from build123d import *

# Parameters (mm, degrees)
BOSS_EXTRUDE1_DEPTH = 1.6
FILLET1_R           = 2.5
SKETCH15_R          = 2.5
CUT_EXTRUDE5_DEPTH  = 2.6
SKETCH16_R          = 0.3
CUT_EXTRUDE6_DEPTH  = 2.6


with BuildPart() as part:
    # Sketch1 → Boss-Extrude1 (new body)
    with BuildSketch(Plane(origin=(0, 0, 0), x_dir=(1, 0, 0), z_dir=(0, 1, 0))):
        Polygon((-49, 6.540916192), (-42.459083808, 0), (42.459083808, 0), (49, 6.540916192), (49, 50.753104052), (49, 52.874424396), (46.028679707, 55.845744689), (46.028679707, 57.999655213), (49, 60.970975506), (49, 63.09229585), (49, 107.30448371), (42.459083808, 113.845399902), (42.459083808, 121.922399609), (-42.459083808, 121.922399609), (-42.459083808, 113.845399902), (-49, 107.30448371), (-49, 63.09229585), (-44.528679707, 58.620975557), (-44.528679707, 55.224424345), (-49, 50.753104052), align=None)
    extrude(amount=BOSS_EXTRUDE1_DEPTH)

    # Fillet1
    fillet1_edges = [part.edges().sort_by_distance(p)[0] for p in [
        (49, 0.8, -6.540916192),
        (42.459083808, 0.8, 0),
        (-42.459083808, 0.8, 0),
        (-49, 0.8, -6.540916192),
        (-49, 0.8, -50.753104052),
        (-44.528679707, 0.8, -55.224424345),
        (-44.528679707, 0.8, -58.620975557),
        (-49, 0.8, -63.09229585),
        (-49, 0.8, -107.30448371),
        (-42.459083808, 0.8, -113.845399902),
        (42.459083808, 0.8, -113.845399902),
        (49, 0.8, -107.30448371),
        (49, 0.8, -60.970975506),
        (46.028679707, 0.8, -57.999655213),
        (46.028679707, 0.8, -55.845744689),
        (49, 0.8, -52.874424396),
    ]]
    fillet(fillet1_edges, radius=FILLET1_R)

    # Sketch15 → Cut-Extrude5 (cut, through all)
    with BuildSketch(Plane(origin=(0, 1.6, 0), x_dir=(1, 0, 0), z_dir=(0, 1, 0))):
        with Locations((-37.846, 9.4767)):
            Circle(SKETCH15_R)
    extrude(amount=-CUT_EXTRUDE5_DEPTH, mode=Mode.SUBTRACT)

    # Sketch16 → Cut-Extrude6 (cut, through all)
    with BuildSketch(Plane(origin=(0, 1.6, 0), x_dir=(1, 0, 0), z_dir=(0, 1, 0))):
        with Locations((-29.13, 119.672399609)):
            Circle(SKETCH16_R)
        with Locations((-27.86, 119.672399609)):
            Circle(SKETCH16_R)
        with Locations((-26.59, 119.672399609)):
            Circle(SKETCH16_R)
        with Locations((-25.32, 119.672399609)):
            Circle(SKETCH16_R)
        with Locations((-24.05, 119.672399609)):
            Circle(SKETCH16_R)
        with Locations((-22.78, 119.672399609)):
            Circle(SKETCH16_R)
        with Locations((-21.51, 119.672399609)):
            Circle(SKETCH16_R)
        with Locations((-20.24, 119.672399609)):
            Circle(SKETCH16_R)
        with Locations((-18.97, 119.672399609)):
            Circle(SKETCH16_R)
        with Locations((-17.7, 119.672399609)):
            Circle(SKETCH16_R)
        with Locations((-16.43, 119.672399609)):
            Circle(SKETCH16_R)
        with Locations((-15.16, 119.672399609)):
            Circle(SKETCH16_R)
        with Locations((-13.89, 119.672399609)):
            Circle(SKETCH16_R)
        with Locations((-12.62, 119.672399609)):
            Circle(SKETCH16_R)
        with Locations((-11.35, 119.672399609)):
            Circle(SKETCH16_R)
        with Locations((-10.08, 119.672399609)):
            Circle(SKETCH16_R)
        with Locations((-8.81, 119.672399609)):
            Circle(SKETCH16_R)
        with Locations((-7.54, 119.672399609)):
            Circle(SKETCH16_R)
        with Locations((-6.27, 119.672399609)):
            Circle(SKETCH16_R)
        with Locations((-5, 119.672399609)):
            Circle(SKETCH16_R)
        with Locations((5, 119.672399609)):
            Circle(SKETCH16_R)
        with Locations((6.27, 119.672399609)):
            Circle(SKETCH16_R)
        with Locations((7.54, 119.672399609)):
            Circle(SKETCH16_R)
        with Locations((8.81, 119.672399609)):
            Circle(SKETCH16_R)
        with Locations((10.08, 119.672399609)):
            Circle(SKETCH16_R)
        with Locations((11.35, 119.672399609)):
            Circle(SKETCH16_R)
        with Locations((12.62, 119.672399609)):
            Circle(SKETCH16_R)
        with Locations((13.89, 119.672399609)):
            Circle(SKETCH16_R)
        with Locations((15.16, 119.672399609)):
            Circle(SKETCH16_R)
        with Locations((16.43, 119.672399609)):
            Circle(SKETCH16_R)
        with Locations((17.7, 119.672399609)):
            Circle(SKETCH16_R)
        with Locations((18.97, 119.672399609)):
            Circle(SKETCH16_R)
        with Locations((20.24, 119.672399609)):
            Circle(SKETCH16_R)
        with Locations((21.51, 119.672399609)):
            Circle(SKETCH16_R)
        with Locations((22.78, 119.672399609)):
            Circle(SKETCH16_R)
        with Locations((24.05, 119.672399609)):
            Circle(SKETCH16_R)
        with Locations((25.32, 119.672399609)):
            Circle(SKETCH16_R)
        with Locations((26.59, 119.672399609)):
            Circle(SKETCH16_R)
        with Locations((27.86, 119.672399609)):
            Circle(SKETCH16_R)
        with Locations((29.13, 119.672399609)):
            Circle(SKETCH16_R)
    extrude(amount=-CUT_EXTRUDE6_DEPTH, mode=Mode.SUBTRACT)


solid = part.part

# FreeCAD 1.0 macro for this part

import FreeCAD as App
import Part
import Sketcher

V = App.Vector
Q = App.Units.Quantity


def edges_at(feature, points):
    """Names of the edges that pass closest to the given points."""
    edges = feature.Shape.Edges
    near = lambda p: min(range(len(edges)), key=lambda i: edges[i].distToShape(Part.Vertex(*p))[0])
    return sorted({f"Edge{near(p) + 1}" for p in points})

doc = App.newDocument("Part")
body = doc.addObject("PartDesign::Body", "Body")

# Sketch on XZ plane
sketch1 = doc.addObject("Sketcher::SketchObject", "Sketch")
body.addObject(sketch1)
sketch1.AttachmentSupport = (doc.XZ_Plane, [""])
sketch1.MapMode = "FlatFace"
sketch1.addGeometry([
    Part.LineSegment(V(-49, -6.5, 0), V(-42.5, 0, 0)),  # 0
    Part.LineSegment(V(-42.5, 0, 0), V(42.5, 0, 0)),  # 1
    Part.LineSegment(V(42.5, 0, 0), V(49, -6.5, 0)),  # 2
    Part.LineSegment(V(49, -6.5, 0), V(49, -52.9, 0)),  # 3
    Part.LineSegment(V(49, -52.9, 0), V(46, -55.8, 0)),  # 4
    Part.LineSegment(V(46, -55.8, 0), V(46, -58, 0)),  # 5
    Part.LineSegment(V(46, -58, 0), V(49, -61, 0)),  # 6
    Part.LineSegment(V(49, -61, 0), V(49, -107.3, 0)),  # 7
    Part.LineSegment(V(49, -107.3, 0), V(42.5, -113.8, 0)),  # 8
    Part.LineSegment(V(42.5, -113.8, 0), V(42.5, -121.9, 0)),  # 9
    Part.LineSegment(V(42.5, -121.9, 0), V(-42.5, -121.9, 0)),  # 10
    Part.LineSegment(V(-42.5, -121.9, 0), V(-42.5, -113.8, 0)),  # 11
    Part.LineSegment(V(-42.5, -113.8, 0), V(-49, -107.3, 0)),  # 12
    Part.LineSegment(V(-49, -107.3, 0), V(-49, -63.1, 0)),  # 13
    Part.LineSegment(V(-49, -63.1, 0), V(-44.5, -58.6, 0)),  # 14
    Part.LineSegment(V(-44.5, -58.6, 0), V(-44.5, -55.2, 0)),  # 15
    Part.LineSegment(V(-44.5, -55.2, 0), V(-49, -50.8, 0)),  # 16
    Part.LineSegment(V(-49, -50.8, 0), V(-49, -6.5, 0)),  # 17
], False)
sketch1.addConstraint([
    Sketcher.Constraint("Coincident", 0, 2, 1, 1),
    Sketcher.Constraint("Coincident", 1, 2, 2, 1),
    Sketcher.Constraint("Coincident", 2, 2, 3, 1),
    Sketcher.Constraint("Coincident", 3, 2, 4, 1),
    Sketcher.Constraint("Coincident", 4, 2, 5, 1),
    Sketcher.Constraint("Coincident", 5, 2, 6, 1),
    Sketcher.Constraint("Coincident", 6, 2, 7, 1),
    Sketcher.Constraint("Coincident", 7, 2, 8, 1),
    Sketcher.Constraint("Coincident", 8, 2, 9, 1),
    Sketcher.Constraint("Coincident", 9, 2, 10, 1),
    Sketcher.Constraint("Coincident", 10, 2, 11, 1),
    Sketcher.Constraint("Coincident", 11, 2, 12, 1),
    Sketcher.Constraint("Coincident", 12, 2, 13, 1),
    Sketcher.Constraint("Coincident", 13, 2, 14, 1),
    Sketcher.Constraint("Coincident", 14, 2, 15, 1),
    Sketcher.Constraint("Coincident", 15, 2, 16, 1),
    Sketcher.Constraint("Coincident", 16, 2, 17, 1),
    Sketcher.Constraint("Coincident", 17, 2, 0, 1),
    Sketcher.Constraint("Horizontal", 1),
    Sketcher.Constraint("Vertical", 3),
    Sketcher.Constraint("Vertical", 5),
    Sketcher.Constraint("Vertical", 7),
    Sketcher.Constraint("Vertical", 9),
    Sketcher.Constraint("Horizontal", 10),
    Sketcher.Constraint("Vertical", 11),
    Sketcher.Constraint("Vertical", 13),
    Sketcher.Constraint("Vertical", 15),
    Sketcher.Constraint("Vertical", 17),
    Sketcher.Constraint("Symmetric", 0, 2, 1, 2, -1, 1),
    Sketcher.Constraint("Symmetric", 8, 2, 11, 2, -2),
    Sketcher.Constraint("Symmetric", 7, 2, 12, 2, -2),
    Sketcher.Constraint("Symmetric", 2, 2, 17, 2, -2),
    Sketcher.Constraint("Perpendicular", 0, 2),
    Sketcher.Constraint("Perpendicular", 2, 4),
    Sketcher.Constraint("Perpendicular", 4, 6),
    Sketcher.Constraint("Perpendicular", 6, 8),
    Sketcher.Constraint("Perpendicular", 12, 14),
    Sketcher.Constraint("Perpendicular", 14, 16),
    Sketcher.Constraint("Vertical", 3, 2, 6, 2),
    Sketcher.Constraint("Vertical", 1, 2, 8, 2),
    Sketcher.Constraint("Equal", 3, 7),
    Sketcher.Constraint("Equal", 13, 17),
    Sketcher.Constraint("DistanceX", -1, 1, 2, 2, Q("49 mm")),
    Sketcher.Constraint("DistanceY", 9, 2, 9, 1, Q("8.077 mm")),
    Sketcher.Constraint("Distance", 14, Q("6.323402 mm")),
    Sketcher.Constraint("DistanceY", 3, 2, 3, 1, Q("46.333508 mm")),
    Sketcher.Constraint("DistanceY", 5, 2, 5, 1, Q("2.153911 mm")),
    Sketcher.Constraint("DistanceY", 15, 1, 15, 2, Q("3.396551 mm")),
    Sketcher.Constraint("DistanceY", 8, 2, -1, 1, Q("113.8454 mm")),
    Sketcher.Constraint("Distance", 4, Q("4.202081 mm")),
])
pad1 = doc.addObject("PartDesign::Pad", "Pad")
body.addObject(pad1)
pad1.Profile = sketch1
pad1.Length = 1.6
pad1.Reversed = True
doc.recompute()

fillet = doc.addObject("PartDesign::Fillet", "Fillet")
body.addObject(fillet)
fillet.Base = (pad1, edges_at(pad1, [
    (49, 0.8, -6.541),
    (42.459, 0.8, 0),
    (-42.459, 0.8, 0),
    (-49, 0.8, -6.541),
    (-49, 0.8, -50.753),
    (-44.529, 0.8, -55.224),
    (-44.529, 0.8, -58.621),
    (-49, 0.8, -63.092),
    (-49, 0.8, -107.304),
    (-42.459, 0.8, -113.845),
    (42.459, 0.8, -113.845),
    (49, 0.8, -107.304),
    (49, 0.8, -60.971),
    (46.029, 0.8, -58),
    (46.029, 0.8, -55.846),
    (49, 0.8, -52.874),
]))
fillet.Radius = 2.5

# Sketch on XZ plane
sketch2 = doc.addObject("Sketcher::SketchObject", "Sketch001")
body.addObject(sketch2)
sketch2.AttachmentSupport = (doc.XZ_Plane, [""])
sketch2.MapMode = "FlatFace"
sketch2.AttachmentOffset = App.Placement(V(0, 0, -1.6), App.Rotation())
sketch2.addGeometry(Part.Circle(V(-37.8, -9.5, 0), V(0, 0, 1), 2.5), False)
sketch2.addConstraint([
    Sketcher.Constraint("Diameter", 0, Q("5 mm")),
    Sketcher.Constraint("DistanceX", 0, 3, -1, 1, Q("37.846 mm")),
    Sketcher.Constraint("DistanceY", 0, 3, -1, 1, Q("9.4767 mm")),
])
pocket1 = doc.addObject("PartDesign::Pocket", "Pocket")
body.addObject(pocket1)
pocket1.Profile = sketch2
pocket1.Type = "ThroughAll"
pocket1.Reversed = True

# Sketch on XZ plane
sketch3 = doc.addObject("Sketcher::SketchObject", "Sketch002")
body.addObject(sketch3)
sketch3.AttachmentSupport = (doc.XZ_Plane, [""])
sketch3.MapMode = "FlatFace"
sketch3.AttachmentOffset = App.Placement(V(0, 0, -1.6), App.Rotation())
sketch3.addGeometry([
    Part.Circle(V(-29.13, -119.67, 0), V(0, 0, 1), 0.3),  # 0
    Part.Circle(V(-27.86, -119.67, 0), V(0, 0, 1), 0.3),  # 1
    Part.Circle(V(-26.59, -119.67, 0), V(0, 0, 1), 0.3),  # 2
    Part.Circle(V(-25.32, -119.67, 0), V(0, 0, 1), 0.3),  # 3
    Part.Circle(V(-24.05, -119.67, 0), V(0, 0, 1), 0.3),  # 4
    Part.Circle(V(-22.78, -119.67, 0), V(0, 0, 1), 0.3),  # 5
    Part.Circle(V(-21.51, -119.67, 0), V(0, 0, 1), 0.3),  # 6
    Part.Circle(V(-20.24, -119.67, 0), V(0, 0, 1), 0.3),  # 7
    Part.Circle(V(-18.97, -119.67, 0), V(0, 0, 1), 0.3),  # 8
    Part.Circle(V(-17.7, -119.67, 0), V(0, 0, 1), 0.3),  # 9
    Part.Circle(V(-16.43, -119.67, 0), V(0, 0, 1), 0.3),  # 10
    Part.Circle(V(-15.16, -119.67, 0), V(0, 0, 1), 0.3),  # 11
    Part.Circle(V(-13.89, -119.67, 0), V(0, 0, 1), 0.3),  # 12
    Part.Circle(V(-12.62, -119.67, 0), V(0, 0, 1), 0.3),  # 13
    Part.Circle(V(-11.35, -119.67, 0), V(0, 0, 1), 0.3),  # 14
    Part.Circle(V(-10.08, -119.67, 0), V(0, 0, 1), 0.3),  # 15
    Part.Circle(V(-8.81, -119.67, 0), V(0, 0, 1), 0.3),  # 16
    Part.Circle(V(-7.54, -119.67, 0), V(0, 0, 1), 0.3),  # 17
    Part.Circle(V(-6.27, -119.67, 0), V(0, 0, 1), 0.3),  # 18
    Part.Circle(V(-5, -119.67, 0), V(0, 0, 1), 0.3),  # 19
    Part.Circle(V(5, -119.67, 0), V(0, 0, 1), 0.3),  # 20
    Part.Circle(V(6.27, -119.67, 0), V(0, 0, 1), 0.3),  # 21
    Part.Circle(V(7.54, -119.67, 0), V(0, 0, 1), 0.3),  # 22
    Part.Circle(V(8.81, -119.67, 0), V(0, 0, 1), 0.3),  # 23
    Part.Circle(V(10.08, -119.67, 0), V(0, 0, 1), 0.3),  # 24
    Part.Circle(V(11.35, -119.67, 0), V(0, 0, 1), 0.3),  # 25
    Part.Circle(V(12.62, -119.67, 0), V(0, 0, 1), 0.3),  # 26
    Part.Circle(V(13.89, -119.67, 0), V(0, 0, 1), 0.3),  # 27
    Part.Circle(V(15.16, -119.67, 0), V(0, 0, 1), 0.3),  # 28
    Part.Circle(V(16.43, -119.67, 0), V(0, 0, 1), 0.3),  # 29
    Part.Circle(V(17.7, -119.67, 0), V(0, 0, 1), 0.3),  # 30
    Part.Circle(V(18.97, -119.67, 0), V(0, 0, 1), 0.3),  # 31
    Part.Circle(V(20.24, -119.67, 0), V(0, 0, 1), 0.3),  # 32
    Part.Circle(V(21.51, -119.67, 0), V(0, 0, 1), 0.3),  # 33
    Part.Circle(V(22.78, -119.67, 0), V(0, 0, 1), 0.3),  # 34
    Part.Circle(V(24.05, -119.67, 0), V(0, 0, 1), 0.3),  # 35
    Part.Circle(V(25.32, -119.67, 0), V(0, 0, 1), 0.3),  # 36
    Part.Circle(V(26.59, -119.67, 0), V(0, 0, 1), 0.3),  # 37
    Part.Circle(V(27.86, -119.67, 0), V(0, 0, 1), 0.3),  # 38
    Part.Circle(V(29.13, -119.67, 0), V(0, 0, 1), 0.3),  # 39
], False)
sketch3.addConstraint([
    Sketcher.Constraint("Equal", 0, 1),
    Sketcher.Constraint("Equal", 1, 2),
    Sketcher.Constraint("Equal", 2, 3),
    Sketcher.Constraint("Equal", 3, 4),
    Sketcher.Constraint("Equal", 4, 5),
    Sketcher.Constraint("Equal", 5, 6),
    Sketcher.Constraint("Equal", 6, 7),
    Sketcher.Constraint("Equal", 7, 8),
    Sketcher.Constraint("Equal", 8, 9),
    Sketcher.Constraint("Equal", 9, 10),
    Sketcher.Constraint("Equal", 10, 11),
    Sketcher.Constraint("Equal", 11, 12),
    Sketcher.Constraint("Equal", 12, 13),
    Sketcher.Constraint("Equal", 13, 14),
    Sketcher.Constraint("Equal", 14, 15),
    Sketcher.Constraint("Equal", 15, 16),
    Sketcher.Constraint("Equal", 16, 17),
    Sketcher.Constraint("Equal", 17, 18),
    Sketcher.Constraint("Equal", 18, 19),
    Sketcher.Constraint("Equal", 19, 20),
    Sketcher.Constraint("Equal", 20, 21),
    Sketcher.Constraint("Equal", 21, 22),
    Sketcher.Constraint("Equal", 22, 23),
    Sketcher.Constraint("Equal", 23, 24),
    Sketcher.Constraint("Equal", 24, 25),
    Sketcher.Constraint("Equal", 25, 26),
    Sketcher.Constraint("Equal", 26, 27),
    Sketcher.Constraint("Equal", 27, 28),
    Sketcher.Constraint("Equal", 28, 29),
    Sketcher.Constraint("Equal", 29, 30),
    Sketcher.Constraint("Equal", 30, 31),
    Sketcher.Constraint("Equal", 31, 32),
    Sketcher.Constraint("Equal", 32, 33),
    Sketcher.Constraint("Equal", 33, 34),
    Sketcher.Constraint("Equal", 34, 35),
    Sketcher.Constraint("Equal", 35, 36),
    Sketcher.Constraint("Equal", 36, 37),
    Sketcher.Constraint("Equal", 37, 38),
    Sketcher.Constraint("Equal", 38, 39),
    Sketcher.Constraint("Symmetric", 19, 3, 20, 3, -2),
    Sketcher.Constraint("Symmetric", 18, 3, 21, 3, -2),
    Sketcher.Constraint("Symmetric", 17, 3, 22, 3, -2),
    Sketcher.Constraint("Symmetric", 16, 3, 23, 3, -2),
    Sketcher.Constraint("Symmetric", 15, 3, 24, 3, -2),
    Sketcher.Constraint("Symmetric", 14, 3, 25, 3, -2),
    Sketcher.Constraint("Symmetric", 13, 3, 26, 3, -2),
    Sketcher.Constraint("Symmetric", 12, 3, 27, 3, -2),
    Sketcher.Constraint("Symmetric", 11, 3, 28, 3, -2),
    Sketcher.Constraint("Symmetric", 10, 3, 29, 3, -2),
    Sketcher.Constraint("Symmetric", 9, 3, 30, 3, -2),
    Sketcher.Constraint("Symmetric", 8, 3, 31, 3, -2),
    Sketcher.Constraint("Symmetric", 7, 3, 32, 3, -2),
    Sketcher.Constraint("Symmetric", 6, 3, 33, 3, -2),
    Sketcher.Constraint("Symmetric", 5, 3, 34, 3, -2),
    Sketcher.Constraint("Symmetric", 4, 3, 35, 3, -2),
    Sketcher.Constraint("Symmetric", 3, 3, 36, 3, -2),
    Sketcher.Constraint("Symmetric", 2, 3, 37, 3, -2),
    Sketcher.Constraint("Symmetric", 1, 3, 38, 3, -2),
    Sketcher.Constraint("Symmetric", 0, 3, 39, 3, -2),
    Sketcher.Constraint("Horizontal", 0, 3, 1, 3),
    Sketcher.Constraint("Horizontal", 1, 3, 2, 3),
    Sketcher.Constraint("Horizontal", 2, 3, 3, 3),
    Sketcher.Constraint("Horizontal", 3, 3, 4, 3),
    Sketcher.Constraint("Horizontal", 4, 3, 5, 3),
    Sketcher.Constraint("Horizontal", 5, 3, 6, 3),
    Sketcher.Constraint("Horizontal", 6, 3, 7, 3),
    Sketcher.Constraint("Horizontal", 7, 3, 8, 3),
    Sketcher.Constraint("Horizontal", 8, 3, 9, 3),
    Sketcher.Constraint("Horizontal", 9, 3, 10, 3),
    Sketcher.Constraint("Horizontal", 10, 3, 11, 3),
    Sketcher.Constraint("Horizontal", 11, 3, 12, 3),
    Sketcher.Constraint("Horizontal", 12, 3, 13, 3),
    Sketcher.Constraint("Horizontal", 13, 3, 14, 3),
    Sketcher.Constraint("Horizontal", 14, 3, 15, 3),
    Sketcher.Constraint("Horizontal", 15, 3, 16, 3),
    Sketcher.Constraint("Horizontal", 16, 3, 17, 3),
    Sketcher.Constraint("Horizontal", 17, 3, 18, 3),
    Sketcher.Constraint("Horizontal", 18, 3, 19, 3),
    Sketcher.Constraint("Diameter", 0, Q("0.6 mm")),
    Sketcher.Constraint("DistanceX", 19, 3, -1, 1, Q("5 mm")),
    Sketcher.Constraint("DistanceX", 9, 3, -1, 1, Q("17.7 mm")),
    Sketcher.Constraint("DistanceX", 0, 3, -1, 1, Q("29.13 mm")),
    Sketcher.Constraint("DistanceX", 1, 3, -1, 1, Q("27.86 mm")),
    Sketcher.Constraint("DistanceX", 2, 3, -1, 1, Q("26.59 mm")),
    Sketcher.Constraint("DistanceX", 3, 3, -1, 1, Q("25.32 mm")),
    Sketcher.Constraint("DistanceX", 4, 3, -1, 1, Q("24.05 mm")),
    Sketcher.Constraint("DistanceX", 5, 3, -1, 1, Q("22.78 mm")),
    Sketcher.Constraint("DistanceX", 6, 3, -1, 1, Q("21.51 mm")),
    Sketcher.Constraint("DistanceX", 7, 3, -1, 1, Q("20.24 mm")),
    Sketcher.Constraint("DistanceX", 8, 3, -1, 1, Q("18.97 mm")),
    Sketcher.Constraint("DistanceX", 10, 3, -1, 1, Q("16.43 mm")),
    Sketcher.Constraint("DistanceX", 11, 3, -1, 1, Q("15.16 mm")),
    Sketcher.Constraint("DistanceX", 12, 3, -1, 1, Q("13.89 mm")),
    Sketcher.Constraint("DistanceX", 13, 3, -1, 1, Q("12.62 mm")),
    Sketcher.Constraint("DistanceX", 14, 3, -1, 1, Q("11.35 mm")),
    Sketcher.Constraint("DistanceX", 15, 3, -1, 1, Q("10.08 mm")),
    Sketcher.Constraint("DistanceX", 16, 3, -1, 1, Q("8.81 mm")),
    Sketcher.Constraint("DistanceX", 17, 3, -1, 1, Q("7.54 mm")),
    Sketcher.Constraint("DistanceX", 18, 3, -1, 1, Q("6.27 mm")),
    Sketcher.Constraint("DistanceY", 0, 3, -1, 1, Q("119.6724 mm")),
])
pocket2 = doc.addObject("PartDesign::Pocket", "Pocket001")
body.addObject(pocket2)
pocket2.Profile = sketch3
pocket2.Type = "ThroughAll"
pocket2.Reversed = True

doc.recompute()
